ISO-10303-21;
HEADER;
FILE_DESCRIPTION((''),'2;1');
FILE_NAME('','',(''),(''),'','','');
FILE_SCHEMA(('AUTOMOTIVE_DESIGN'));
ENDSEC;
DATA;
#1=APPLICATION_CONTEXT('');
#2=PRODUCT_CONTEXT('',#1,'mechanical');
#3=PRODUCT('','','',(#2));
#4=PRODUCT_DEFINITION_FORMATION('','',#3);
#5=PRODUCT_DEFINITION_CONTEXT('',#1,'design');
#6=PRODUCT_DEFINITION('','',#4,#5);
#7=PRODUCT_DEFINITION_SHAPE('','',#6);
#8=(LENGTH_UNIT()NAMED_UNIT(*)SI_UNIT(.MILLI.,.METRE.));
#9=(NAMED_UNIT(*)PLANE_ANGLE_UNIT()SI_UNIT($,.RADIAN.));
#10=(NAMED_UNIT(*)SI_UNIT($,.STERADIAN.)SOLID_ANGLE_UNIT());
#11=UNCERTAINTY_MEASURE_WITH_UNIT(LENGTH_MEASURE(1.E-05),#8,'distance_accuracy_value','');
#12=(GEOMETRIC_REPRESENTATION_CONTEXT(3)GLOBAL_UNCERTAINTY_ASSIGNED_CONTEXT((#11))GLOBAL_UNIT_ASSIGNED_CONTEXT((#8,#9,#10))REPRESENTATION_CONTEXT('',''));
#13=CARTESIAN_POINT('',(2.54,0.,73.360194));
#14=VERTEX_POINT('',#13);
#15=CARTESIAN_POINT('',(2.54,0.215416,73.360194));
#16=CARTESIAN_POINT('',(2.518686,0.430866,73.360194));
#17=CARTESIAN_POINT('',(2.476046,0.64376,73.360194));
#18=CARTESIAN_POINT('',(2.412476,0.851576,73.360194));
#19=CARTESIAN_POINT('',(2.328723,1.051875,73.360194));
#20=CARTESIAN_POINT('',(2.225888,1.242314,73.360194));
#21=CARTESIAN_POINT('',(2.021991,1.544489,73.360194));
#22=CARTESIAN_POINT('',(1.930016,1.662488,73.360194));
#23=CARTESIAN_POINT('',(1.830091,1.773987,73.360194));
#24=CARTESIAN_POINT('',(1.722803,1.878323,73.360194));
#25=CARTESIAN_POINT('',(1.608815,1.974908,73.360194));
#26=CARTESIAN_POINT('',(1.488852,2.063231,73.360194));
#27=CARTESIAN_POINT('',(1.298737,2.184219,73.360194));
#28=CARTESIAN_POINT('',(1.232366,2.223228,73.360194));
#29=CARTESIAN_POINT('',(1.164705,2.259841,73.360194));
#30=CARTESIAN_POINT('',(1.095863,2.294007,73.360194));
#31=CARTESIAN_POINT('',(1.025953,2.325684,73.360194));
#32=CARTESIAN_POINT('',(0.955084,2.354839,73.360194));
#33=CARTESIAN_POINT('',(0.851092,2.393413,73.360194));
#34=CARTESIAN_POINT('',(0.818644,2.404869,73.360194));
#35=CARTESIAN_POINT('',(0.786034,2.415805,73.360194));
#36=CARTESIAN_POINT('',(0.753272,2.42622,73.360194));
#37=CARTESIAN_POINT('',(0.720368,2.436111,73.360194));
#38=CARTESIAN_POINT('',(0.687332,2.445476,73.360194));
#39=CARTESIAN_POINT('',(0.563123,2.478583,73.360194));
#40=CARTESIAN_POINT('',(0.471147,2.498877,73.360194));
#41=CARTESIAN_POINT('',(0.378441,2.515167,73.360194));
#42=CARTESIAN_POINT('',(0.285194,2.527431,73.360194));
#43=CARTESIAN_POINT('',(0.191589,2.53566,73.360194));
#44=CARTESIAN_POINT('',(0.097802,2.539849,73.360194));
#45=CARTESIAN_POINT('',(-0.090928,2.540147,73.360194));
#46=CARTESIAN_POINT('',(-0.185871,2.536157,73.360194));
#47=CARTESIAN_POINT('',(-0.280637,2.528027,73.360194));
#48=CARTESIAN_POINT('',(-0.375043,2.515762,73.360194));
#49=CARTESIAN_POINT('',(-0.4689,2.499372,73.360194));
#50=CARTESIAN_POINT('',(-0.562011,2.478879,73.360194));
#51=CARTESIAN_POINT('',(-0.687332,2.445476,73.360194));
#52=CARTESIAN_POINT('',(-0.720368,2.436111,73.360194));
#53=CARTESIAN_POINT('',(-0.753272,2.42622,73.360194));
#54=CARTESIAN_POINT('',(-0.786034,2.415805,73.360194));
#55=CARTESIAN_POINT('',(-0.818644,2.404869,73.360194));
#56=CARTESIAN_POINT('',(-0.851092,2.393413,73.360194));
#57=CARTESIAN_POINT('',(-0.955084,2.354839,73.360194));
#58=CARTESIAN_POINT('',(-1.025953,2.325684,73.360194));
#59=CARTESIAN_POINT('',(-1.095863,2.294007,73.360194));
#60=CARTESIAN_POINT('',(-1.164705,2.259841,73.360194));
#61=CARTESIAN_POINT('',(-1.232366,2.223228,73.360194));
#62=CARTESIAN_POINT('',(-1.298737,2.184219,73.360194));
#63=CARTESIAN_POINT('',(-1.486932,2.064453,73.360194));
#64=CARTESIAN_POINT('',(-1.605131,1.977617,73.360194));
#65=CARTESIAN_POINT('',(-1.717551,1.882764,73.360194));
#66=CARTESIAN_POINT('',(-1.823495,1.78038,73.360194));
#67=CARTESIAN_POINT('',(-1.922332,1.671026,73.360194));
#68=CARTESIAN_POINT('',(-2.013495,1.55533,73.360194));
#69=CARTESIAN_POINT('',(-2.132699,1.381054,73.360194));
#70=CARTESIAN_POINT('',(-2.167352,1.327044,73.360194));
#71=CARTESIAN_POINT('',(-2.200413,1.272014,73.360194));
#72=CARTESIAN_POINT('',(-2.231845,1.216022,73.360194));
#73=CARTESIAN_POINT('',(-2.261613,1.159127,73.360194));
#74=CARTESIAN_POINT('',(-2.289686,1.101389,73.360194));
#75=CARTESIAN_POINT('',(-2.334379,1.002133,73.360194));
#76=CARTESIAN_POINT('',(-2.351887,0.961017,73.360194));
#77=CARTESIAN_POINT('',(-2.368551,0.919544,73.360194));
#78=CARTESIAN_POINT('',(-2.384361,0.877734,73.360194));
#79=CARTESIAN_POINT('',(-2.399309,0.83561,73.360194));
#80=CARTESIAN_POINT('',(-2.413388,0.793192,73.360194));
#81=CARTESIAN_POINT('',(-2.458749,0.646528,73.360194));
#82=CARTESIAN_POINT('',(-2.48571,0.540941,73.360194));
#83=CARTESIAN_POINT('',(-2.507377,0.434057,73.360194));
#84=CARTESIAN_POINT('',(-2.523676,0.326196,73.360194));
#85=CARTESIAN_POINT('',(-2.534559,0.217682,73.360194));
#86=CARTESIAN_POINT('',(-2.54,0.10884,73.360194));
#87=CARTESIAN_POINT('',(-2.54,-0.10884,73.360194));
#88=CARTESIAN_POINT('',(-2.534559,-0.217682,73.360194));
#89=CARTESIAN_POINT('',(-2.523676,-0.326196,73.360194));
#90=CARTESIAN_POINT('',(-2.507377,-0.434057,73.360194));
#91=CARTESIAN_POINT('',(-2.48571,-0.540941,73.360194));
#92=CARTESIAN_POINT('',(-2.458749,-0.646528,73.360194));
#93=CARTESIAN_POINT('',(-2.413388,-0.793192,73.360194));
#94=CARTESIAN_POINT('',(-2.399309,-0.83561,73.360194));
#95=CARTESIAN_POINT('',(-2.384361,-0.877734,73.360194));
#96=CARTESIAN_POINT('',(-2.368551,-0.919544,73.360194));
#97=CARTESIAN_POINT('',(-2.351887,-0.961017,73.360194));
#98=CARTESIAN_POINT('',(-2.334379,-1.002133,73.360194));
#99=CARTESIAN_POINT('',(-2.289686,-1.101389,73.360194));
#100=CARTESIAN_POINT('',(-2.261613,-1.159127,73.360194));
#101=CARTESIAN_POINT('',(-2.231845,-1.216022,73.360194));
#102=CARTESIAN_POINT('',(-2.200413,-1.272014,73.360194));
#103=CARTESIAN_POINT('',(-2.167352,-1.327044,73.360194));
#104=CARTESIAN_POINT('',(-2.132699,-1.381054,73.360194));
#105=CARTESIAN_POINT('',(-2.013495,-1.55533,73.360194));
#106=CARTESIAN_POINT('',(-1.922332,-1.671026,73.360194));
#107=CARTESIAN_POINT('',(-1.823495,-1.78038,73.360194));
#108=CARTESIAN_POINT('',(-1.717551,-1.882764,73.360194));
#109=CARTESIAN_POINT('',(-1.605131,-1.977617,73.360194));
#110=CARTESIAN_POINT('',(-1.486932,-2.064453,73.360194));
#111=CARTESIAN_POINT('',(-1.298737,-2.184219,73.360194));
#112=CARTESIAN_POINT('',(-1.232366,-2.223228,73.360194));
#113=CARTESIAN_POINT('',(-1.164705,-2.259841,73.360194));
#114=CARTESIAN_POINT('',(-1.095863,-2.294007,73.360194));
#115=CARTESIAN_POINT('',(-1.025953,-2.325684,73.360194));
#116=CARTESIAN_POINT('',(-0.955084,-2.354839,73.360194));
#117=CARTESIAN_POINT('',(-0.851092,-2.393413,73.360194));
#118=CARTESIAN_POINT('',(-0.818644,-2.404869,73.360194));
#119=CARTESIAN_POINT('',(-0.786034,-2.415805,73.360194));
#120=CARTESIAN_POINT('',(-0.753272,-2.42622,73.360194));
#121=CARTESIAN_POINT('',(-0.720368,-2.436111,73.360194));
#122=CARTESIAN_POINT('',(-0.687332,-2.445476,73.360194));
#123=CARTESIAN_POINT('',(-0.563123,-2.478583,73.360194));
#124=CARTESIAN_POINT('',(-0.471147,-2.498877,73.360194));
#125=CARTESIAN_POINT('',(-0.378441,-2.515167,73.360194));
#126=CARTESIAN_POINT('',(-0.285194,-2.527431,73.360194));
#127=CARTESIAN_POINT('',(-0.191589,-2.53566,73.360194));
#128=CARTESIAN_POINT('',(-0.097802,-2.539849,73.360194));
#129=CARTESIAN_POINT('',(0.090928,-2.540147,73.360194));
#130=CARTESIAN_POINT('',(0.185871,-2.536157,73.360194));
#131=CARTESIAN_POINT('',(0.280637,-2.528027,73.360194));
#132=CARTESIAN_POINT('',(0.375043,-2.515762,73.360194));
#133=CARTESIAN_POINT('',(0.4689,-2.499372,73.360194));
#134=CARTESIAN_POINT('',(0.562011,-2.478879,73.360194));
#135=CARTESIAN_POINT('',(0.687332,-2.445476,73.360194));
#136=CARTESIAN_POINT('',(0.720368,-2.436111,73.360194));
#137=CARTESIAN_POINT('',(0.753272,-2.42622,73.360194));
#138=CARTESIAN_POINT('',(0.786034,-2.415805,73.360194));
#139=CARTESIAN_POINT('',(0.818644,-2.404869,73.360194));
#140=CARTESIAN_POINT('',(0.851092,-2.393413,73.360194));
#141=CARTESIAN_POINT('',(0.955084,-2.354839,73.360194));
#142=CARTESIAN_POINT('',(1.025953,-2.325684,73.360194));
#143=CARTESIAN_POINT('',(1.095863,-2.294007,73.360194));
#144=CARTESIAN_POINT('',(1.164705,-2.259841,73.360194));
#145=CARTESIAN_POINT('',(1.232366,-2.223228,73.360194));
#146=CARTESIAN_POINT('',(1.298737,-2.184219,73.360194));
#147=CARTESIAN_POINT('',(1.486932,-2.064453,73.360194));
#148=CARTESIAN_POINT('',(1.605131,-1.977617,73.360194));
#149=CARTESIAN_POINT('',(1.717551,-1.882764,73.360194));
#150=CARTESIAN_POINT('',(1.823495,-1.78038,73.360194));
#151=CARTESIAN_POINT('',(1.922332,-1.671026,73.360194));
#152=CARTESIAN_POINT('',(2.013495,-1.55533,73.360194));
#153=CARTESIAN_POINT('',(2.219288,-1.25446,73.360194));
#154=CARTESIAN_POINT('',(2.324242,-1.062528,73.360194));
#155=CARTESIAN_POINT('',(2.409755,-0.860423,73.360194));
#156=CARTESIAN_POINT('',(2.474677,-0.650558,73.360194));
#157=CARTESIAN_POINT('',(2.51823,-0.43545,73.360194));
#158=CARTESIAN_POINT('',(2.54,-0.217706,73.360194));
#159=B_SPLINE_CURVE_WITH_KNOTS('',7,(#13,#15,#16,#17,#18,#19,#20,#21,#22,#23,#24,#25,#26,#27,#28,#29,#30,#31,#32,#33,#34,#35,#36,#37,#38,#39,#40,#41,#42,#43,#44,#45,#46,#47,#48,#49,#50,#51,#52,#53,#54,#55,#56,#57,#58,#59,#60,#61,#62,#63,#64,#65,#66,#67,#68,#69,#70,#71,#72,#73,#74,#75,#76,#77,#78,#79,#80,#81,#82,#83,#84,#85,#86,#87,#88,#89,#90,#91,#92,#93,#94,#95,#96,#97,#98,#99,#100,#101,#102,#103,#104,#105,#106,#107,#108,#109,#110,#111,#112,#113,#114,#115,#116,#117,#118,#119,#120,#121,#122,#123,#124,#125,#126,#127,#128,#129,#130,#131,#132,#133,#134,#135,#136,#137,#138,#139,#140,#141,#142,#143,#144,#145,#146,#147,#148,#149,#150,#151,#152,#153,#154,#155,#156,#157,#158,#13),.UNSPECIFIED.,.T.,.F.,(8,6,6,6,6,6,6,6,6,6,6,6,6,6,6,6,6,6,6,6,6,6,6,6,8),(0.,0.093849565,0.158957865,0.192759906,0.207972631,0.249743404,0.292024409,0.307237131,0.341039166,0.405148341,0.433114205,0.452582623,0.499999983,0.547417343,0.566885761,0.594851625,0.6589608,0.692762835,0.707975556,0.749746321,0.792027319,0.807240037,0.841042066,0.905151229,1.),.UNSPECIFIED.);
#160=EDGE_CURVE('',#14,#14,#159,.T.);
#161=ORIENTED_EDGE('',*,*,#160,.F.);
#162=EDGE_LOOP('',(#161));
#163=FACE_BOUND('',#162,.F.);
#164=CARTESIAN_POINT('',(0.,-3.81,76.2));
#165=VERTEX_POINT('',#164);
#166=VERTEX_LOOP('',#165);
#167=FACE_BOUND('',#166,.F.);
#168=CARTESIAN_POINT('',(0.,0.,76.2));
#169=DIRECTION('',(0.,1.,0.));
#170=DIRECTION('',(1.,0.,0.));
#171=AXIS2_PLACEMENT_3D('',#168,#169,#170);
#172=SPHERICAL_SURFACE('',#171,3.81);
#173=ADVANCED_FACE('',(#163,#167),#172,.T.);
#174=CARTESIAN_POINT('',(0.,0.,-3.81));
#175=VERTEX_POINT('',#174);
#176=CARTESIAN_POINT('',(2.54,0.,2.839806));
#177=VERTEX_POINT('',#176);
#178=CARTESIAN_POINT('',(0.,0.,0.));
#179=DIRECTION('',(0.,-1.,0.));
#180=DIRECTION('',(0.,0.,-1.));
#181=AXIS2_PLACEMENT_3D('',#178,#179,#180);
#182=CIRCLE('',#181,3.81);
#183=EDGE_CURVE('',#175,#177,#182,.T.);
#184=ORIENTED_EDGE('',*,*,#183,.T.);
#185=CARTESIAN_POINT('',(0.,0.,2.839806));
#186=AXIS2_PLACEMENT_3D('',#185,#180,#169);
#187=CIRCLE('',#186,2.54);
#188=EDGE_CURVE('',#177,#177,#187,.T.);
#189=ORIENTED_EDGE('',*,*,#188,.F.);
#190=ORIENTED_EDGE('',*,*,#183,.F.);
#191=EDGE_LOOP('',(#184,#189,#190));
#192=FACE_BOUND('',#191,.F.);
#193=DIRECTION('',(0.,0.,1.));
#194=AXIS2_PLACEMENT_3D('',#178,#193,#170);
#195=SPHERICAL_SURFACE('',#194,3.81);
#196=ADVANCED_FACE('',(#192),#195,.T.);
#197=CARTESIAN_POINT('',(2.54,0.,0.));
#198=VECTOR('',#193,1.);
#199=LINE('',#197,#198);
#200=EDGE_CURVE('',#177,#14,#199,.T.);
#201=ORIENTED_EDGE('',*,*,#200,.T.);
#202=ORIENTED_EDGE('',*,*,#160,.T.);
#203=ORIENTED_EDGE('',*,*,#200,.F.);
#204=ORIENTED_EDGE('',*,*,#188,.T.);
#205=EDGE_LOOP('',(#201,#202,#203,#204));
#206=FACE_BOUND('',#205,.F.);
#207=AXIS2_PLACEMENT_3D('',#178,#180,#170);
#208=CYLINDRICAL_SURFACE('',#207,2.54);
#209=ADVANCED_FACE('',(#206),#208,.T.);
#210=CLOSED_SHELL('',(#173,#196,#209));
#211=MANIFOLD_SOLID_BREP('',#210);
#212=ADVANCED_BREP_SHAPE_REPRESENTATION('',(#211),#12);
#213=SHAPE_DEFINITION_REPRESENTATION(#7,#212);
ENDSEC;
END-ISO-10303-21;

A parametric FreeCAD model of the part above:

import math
import FreeCAD as App
import Part
import Sketcher

V = App.Vector
Q = App.Units.Quantity

doc = App.newDocument("Part")
params = doc.addObject("Spreadsheet::Sheet", "Params")
for row, (alias, value) in enumerate([
    ("sketch1_radius", "0.15 in"),
    ("revolution_angle", "360 deg"),
    ("sketch2_diameter", "0.2 in"),
    ("pad1_length", "3 in"),
    ("sketch3_radius", "0.15 in"),
    ("revolution2_angle", "360 deg"),
], start=1):
    params.set(f"A{row}", alias)
    params.set(f"B{row}", "=" + value)
    params.setAlias(f"B{row}", alias)

body = doc.addObject("PartDesign::Body", "Body")

# Sketch on XZ plane
sketch1 = doc.addObject("Sketcher::SketchObject", "Sketch")
body.addObject(sketch1)
sketch1.AttachmentSupport = (doc.XZ_Plane, [""])
sketch1.MapMode = "FlatFace"
sketch1.addGeometry(Part.LineSegment(V(0, 3.8, 0), V(0, -3.8, 0)), False)
sketch1.addGeometry(Part.ArcOfCircle(Part.Circle(V(0, 0, 0), V(0, 0, 1), 3.8), math.radians(-90), math.radians(90)), False)
sketch1.addConstraint(Sketcher.Constraint("Coincident", 0, 1, 1, 2))
sketch1.addConstraint(Sketcher.Constraint("Coincident", 1, 1, 0, 2))
sketch1.addConstraint(Sketcher.Constraint("Vertical", 0))
sketch1.addConstraint(Sketcher.Constraint("Coincident", 1, 3, -1, 1))
sketch1.addConstraint(Sketcher.Constraint("PointOnObject", 0, 1, -2))
sketch1.addConstraint(Sketcher.Constraint("Radius", 1, Q("0.15 in")))
sketch1.setExpression("Constraints[5]", "Params.sketch1_radius")
revolution = doc.addObject("PartDesign::Revolution", "Revolution")
body.addObject(revolution)
revolution.Profile = sketch1
revolution.ReferenceAxis = (sketch1, ["V_Axis"])
revolution.setExpression("Angle", "Params.revolution_angle")

# Sketch on XY plane
sketch2 = doc.addObject("Sketcher::SketchObject", "Sketch001")
body.addObject(sketch2)
sketch2.AttachmentSupport = (doc.XY_Plane, [""])
sketch2.MapMode = "FlatFace"
sketch2.addGeometry(Part.Circle(V(0, 0, 0), V(0, 0, 1), 2.5), False)
sketch2.addConstraint(Sketcher.Constraint("Coincident", 0, 3, -1, 1))
sketch2.addConstraint(Sketcher.Constraint("Diameter", 0, Q("0.2 in")))
sketch2.setExpression("Constraints[1]", "Params.sketch2_diameter")
pad1 = doc.addObject("PartDesign::Pad", "Pad")
body.addObject(pad1)
pad1.Profile = sketch2
pad1.setExpression("Length", "Params.pad1_length")

# Sketch on XY plane
sketch3 = doc.addObject("Sketcher::SketchObject", "Sketch002")
body.addObject(sketch3)
sketch3.AttachmentSupport = (doc.XY_Plane, [""])
sketch3.MapMode = "FlatFace"
sketch3.AttachmentOffset = App.Placement(V(0, 0, 3 * 25.4), App.Rotation())
sketch3.addGeometry(Part.ArcOfCircle(Part.Circle(V(0, 0, 0), V(0, 0, 1), 3.8), math.radians(-90), math.radians(90)), False)
sketch3.addGeometry(Part.LineSegment(V(0, 3.8, 0), V(0, -3.8, 0)), False)
sketch3.addConstraint(Sketcher.Constraint("Coincident", 0, 1, 1, 2))
sketch3.addConstraint(Sketcher.Constraint("Coincident", 1, 1, 0, 2))
sketch3.addConstraint(Sketcher.Constraint("Vertical", 1))
sketch3.addConstraint(Sketcher.Constraint("Coincident", 0, 3, -1, 1))
sketch3.addConstraint(Sketcher.Constraint("PointOnObject", 0, 1, -2))
sketch3.addConstraint(Sketcher.Constraint("Radius", 0, Q("0.15 in")))
sketch3.setExpression("Constraints[5]", "Params.sketch3_radius")
revolution2 = doc.addObject("PartDesign::Revolution", "Revolution001")
body.addObject(revolution2)
revolution2.Profile = sketch3
revolution2.ReferenceAxis = (sketch3, ["V_Axis"])
revolution2.setExpression("Angle", "Params.revolution2_angle")

doc.recompute()
